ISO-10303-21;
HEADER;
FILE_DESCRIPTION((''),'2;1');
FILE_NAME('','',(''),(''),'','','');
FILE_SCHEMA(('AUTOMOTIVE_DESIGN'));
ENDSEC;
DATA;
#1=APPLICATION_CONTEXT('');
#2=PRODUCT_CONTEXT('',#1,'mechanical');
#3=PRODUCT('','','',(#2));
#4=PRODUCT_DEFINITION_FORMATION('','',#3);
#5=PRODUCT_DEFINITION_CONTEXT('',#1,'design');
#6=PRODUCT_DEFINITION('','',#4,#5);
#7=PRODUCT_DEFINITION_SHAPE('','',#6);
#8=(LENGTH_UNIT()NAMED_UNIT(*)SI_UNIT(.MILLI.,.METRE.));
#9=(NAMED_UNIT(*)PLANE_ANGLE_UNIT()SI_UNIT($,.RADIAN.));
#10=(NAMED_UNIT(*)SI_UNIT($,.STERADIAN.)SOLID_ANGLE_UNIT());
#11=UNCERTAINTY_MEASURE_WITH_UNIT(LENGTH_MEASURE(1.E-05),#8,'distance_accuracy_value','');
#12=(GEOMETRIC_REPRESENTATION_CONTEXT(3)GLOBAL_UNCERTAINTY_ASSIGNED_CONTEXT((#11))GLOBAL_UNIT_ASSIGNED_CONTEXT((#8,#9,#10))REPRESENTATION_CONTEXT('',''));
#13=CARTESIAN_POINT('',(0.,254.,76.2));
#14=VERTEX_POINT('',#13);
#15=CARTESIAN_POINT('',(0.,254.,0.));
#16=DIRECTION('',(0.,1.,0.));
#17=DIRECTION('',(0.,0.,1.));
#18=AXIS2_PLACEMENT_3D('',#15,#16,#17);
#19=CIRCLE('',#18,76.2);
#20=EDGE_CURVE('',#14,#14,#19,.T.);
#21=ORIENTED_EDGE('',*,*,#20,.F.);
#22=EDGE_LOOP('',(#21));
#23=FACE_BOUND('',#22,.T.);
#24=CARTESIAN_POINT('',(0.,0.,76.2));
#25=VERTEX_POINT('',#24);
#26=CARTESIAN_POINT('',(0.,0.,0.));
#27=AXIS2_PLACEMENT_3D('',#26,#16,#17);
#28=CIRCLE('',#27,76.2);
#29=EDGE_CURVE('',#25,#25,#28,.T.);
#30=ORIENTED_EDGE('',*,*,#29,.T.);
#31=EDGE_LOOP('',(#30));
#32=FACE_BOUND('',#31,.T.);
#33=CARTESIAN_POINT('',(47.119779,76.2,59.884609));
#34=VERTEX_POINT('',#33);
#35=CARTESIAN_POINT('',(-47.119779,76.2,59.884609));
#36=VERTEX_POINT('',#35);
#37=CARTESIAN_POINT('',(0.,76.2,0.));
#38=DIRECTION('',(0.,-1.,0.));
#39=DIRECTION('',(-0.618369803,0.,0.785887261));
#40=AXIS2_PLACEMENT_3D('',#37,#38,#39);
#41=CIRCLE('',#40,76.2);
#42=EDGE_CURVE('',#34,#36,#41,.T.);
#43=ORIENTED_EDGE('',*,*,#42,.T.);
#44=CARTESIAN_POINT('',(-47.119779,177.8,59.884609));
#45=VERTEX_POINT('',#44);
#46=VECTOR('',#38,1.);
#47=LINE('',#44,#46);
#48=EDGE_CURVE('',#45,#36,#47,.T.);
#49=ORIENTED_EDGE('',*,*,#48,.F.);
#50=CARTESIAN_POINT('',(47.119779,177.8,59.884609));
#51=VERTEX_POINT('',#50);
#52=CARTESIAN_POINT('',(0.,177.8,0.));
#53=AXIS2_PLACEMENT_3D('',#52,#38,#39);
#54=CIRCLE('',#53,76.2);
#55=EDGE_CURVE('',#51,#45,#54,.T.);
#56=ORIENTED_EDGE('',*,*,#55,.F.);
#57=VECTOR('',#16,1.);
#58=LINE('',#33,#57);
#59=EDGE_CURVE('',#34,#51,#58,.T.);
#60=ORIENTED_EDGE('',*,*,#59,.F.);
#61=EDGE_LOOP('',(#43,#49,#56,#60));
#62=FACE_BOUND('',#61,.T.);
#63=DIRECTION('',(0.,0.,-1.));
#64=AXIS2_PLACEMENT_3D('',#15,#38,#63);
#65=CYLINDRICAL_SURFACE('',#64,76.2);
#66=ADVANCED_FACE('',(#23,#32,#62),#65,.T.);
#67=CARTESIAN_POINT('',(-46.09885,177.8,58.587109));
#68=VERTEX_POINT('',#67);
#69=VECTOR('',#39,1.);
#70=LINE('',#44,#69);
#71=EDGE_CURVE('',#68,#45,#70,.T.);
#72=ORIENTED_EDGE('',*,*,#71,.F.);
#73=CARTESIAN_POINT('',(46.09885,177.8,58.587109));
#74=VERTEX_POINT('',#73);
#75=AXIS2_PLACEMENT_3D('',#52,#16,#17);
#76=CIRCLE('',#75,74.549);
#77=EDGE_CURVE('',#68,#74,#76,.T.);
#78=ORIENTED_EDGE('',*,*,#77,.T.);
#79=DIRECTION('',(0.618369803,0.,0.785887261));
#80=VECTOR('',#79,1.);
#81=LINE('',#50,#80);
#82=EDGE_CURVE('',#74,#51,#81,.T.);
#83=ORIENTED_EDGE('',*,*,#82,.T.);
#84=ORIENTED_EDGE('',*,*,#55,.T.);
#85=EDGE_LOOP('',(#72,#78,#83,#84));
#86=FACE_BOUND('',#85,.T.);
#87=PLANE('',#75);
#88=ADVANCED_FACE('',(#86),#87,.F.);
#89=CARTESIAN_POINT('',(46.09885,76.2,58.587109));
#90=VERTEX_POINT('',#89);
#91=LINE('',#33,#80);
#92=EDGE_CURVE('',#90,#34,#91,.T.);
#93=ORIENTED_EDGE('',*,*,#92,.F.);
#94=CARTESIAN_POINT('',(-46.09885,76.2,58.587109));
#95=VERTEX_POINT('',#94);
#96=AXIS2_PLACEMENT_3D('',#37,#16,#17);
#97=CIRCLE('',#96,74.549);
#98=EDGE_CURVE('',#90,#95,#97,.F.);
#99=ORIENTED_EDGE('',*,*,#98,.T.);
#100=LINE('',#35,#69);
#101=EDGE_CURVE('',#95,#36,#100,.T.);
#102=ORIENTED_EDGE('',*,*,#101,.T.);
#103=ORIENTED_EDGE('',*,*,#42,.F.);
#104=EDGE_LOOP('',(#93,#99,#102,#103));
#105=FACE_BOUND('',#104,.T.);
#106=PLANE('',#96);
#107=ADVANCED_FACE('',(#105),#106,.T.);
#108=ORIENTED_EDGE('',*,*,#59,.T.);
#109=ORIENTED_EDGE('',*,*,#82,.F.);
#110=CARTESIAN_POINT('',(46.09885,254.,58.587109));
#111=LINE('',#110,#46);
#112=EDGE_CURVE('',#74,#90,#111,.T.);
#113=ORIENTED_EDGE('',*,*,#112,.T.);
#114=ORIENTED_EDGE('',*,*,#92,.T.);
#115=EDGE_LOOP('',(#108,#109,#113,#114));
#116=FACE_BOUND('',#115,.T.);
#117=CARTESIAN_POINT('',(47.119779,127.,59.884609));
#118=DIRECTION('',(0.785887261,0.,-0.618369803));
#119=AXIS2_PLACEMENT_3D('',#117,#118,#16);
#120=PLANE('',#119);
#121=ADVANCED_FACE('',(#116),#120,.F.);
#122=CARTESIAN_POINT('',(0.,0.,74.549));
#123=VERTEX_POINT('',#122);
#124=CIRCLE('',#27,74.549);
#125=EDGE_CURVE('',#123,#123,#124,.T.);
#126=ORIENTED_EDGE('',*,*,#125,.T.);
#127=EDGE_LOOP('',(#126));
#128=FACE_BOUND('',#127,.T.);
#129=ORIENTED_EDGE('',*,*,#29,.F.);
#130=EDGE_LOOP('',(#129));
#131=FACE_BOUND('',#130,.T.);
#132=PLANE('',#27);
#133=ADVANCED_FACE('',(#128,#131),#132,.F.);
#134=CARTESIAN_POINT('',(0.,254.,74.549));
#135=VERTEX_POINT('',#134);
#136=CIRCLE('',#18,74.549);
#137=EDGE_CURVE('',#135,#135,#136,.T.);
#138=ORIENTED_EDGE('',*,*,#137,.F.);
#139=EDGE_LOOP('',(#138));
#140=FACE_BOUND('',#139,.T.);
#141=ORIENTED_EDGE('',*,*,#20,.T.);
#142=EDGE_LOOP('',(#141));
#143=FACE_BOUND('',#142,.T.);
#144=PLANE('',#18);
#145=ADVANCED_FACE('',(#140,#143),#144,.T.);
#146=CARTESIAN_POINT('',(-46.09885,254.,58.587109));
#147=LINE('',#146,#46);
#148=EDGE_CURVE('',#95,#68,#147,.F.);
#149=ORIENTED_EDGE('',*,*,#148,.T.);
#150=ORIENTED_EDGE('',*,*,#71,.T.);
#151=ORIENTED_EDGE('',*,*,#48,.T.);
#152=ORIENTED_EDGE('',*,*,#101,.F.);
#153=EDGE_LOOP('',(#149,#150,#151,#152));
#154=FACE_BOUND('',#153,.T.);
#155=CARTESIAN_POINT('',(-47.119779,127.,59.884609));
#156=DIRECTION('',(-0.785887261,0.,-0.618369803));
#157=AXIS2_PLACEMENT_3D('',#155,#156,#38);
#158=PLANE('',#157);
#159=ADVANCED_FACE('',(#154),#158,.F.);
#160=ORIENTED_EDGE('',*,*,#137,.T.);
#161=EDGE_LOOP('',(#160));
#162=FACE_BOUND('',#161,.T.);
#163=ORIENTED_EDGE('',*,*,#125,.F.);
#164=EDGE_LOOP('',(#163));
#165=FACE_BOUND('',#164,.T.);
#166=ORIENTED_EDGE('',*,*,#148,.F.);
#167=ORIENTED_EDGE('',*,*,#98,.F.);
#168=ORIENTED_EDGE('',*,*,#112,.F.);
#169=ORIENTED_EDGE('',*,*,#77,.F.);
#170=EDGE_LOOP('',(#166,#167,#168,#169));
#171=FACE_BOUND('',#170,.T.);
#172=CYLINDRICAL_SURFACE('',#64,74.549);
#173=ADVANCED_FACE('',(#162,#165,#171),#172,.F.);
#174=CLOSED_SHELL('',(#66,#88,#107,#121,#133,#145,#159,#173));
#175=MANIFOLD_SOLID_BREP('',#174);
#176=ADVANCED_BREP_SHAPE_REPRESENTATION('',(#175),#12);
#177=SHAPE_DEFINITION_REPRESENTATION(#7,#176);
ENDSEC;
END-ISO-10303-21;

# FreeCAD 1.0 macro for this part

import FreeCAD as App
import Part
import Sketcher

V = App.Vector
Q = App.Units.Quantity

doc = App.newDocument("Part")
body = doc.addObject("PartDesign::Body", "Body")

# Sketch on XZ plane
sketch1 = body.newObject("Sketcher::SketchObject", "Sketch")
sketch1.AttachmentSupport = (doc.getObject("XZ_Plane"), [""])
sketch1.MapMode = "FlatFace"
sketch1.addGeometry(Part.Circle(V(0, 0, 0), V(0, 0, 1), 76), False)
sketch1.addGeometry(Part.Circle(V(0, 0, 0), V(0, 0, 1), 75), False)
sketch1.addConstraint(Sketcher.Constraint("Coincident", 0, 3, -1, 1))
sketch1.addConstraint(Sketcher.Constraint("Coincident", 1, 3, -1, 1))
sketch1.addConstraint(Sketcher.Constraint("Diameter", 0, Q("6 in")))
sketch1.addConstraint(Sketcher.Constraint("Diameter", 1, Q("5.87 in")))
pad1 = body.newObject("PartDesign::Pad", "Pad")
pad1.Profile = sketch1
pad1.Length = Q("10 in")
pad1.Reversed = True

# Sketch on an angled plane
sketch2 = body.newObject("Sketcher::SketchObject", "Sketch001")
sketch2.Placement = App.Placement(V(0, 0, 0), App.Rotation(V(0.618369803, 0, 0.785887261), V(0, -1, 0), V(0.785887261, 0, -0.618369803), "ZXY"))
sketch2.addGeometry(Part.LineSegment(V(72.9, -76.2, 0), V(72.9, -177.8, 0)), False)
sketch2.addGeometry(Part.LineSegment(V(72.9, -177.8, 0), V(76.2, -177.8, 0)), False)
sketch2.addGeometry(Part.LineSegment(V(76.2, -177.8, 0), V(76.2, -76.2, 0)), False)
sketch2.addGeometry(Part.LineSegment(V(76.2, -76.2, 0), V(72.9, -76.2, 0)), False)
sketch2.addConstraint(Sketcher.Constraint("Coincident", 0, 2, 1, 1))
sketch2.addConstraint(Sketcher.Constraint("Coincident", 1, 2, 2, 1))
sketch2.addConstraint(Sketcher.Constraint("Coincident", 2, 2, 3, 1))
sketch2.addConstraint(Sketcher.Constraint("Coincident", 3, 2, 0, 1))
sketch2.addConstraint(Sketcher.Constraint("Vertical", 0))
sketch2.addConstraint(Sketcher.Constraint("Horizontal", 1))
sketch2.addConstraint(Sketcher.Constraint("Vertical", 2))
sketch2.addConstraint(Sketcher.Constraint("Horizontal", 3))
sketch2.addConstraint(Sketcher.Constraint("DistanceY", 0, 2, 0, 1, Q("4 in")))
sketch2.addConstraint(Sketcher.Constraint("DistanceY", 0, 2, -1, 1, Q("7 in")))
sketch2.addConstraint(Sketcher.Constraint("DistanceX", -1, 1, 1, 2, Q("3 in")))
sketch2.addConstraint(Sketcher.Constraint("DistanceX", 1, 1, 1, 2, Q("0.13 in")))
groove = body.newObject("PartDesign::Groove", "Groove")
groove.Profile = sketch2
groove.ReferenceAxis = (sketch2, ["V_Axis"])
groove.Angle = 76.394373

doc.recompute()
